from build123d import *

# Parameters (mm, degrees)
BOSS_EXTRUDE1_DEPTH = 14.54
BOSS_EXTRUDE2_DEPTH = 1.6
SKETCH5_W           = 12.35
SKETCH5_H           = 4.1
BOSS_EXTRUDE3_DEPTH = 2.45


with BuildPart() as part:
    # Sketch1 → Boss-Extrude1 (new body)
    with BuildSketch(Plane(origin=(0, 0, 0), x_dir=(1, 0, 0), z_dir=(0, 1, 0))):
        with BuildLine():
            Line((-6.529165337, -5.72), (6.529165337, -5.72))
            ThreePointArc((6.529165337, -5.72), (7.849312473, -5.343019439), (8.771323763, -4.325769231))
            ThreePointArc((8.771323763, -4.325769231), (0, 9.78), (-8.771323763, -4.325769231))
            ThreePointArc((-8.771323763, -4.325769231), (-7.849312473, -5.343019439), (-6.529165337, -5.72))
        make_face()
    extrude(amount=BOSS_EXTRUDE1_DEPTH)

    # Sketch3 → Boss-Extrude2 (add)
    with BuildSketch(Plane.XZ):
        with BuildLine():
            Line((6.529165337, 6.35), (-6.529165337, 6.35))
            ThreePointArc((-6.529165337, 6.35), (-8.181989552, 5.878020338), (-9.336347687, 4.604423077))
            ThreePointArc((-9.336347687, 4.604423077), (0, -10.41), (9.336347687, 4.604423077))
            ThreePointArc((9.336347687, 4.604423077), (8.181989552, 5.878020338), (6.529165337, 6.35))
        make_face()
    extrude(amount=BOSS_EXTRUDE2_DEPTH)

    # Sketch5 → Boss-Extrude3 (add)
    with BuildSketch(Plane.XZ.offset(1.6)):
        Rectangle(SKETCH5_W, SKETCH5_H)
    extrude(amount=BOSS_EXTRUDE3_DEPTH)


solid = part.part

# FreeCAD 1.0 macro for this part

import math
import FreeCAD as App
import Part
import Sketcher

V = App.Vector


def add_polygon(sketch, points):
    """Adds a closed chain of lines whose ends are joined by coincident constraints."""
    first, n = sketch.GeometryCount, len(points)
    for a, b in zip(points, points[1:] + points[:1]):
        sketch.addGeometry(Part.LineSegment(App.Vector(*a, 0), App.Vector(*b, 0)), False)
    for i in range(n):
        sketch.addConstraint(Sketcher.Constraint("Coincident", first + i, 2, first + (i + 1) % n, 1))

doc = App.newDocument("Part")
body = doc.addObject("PartDesign::Body", "Body")

sketch1 = body.newObject("Sketcher::SketchObject", "Sketch")
sketch1.AttachmentSupport = (doc.getObject("XZ_Plane"), [""])
sketch1.MapMode = "FlatFace"
sketch1.addGeometry([
    Part.LineSegment(V(-6.5, 5.7, 0), V(6.5, 5.7, 0)),
    Part.ArcOfCircle(Part.Circle(V(6.5, 3.2, 0), V(0, 0, 1), 2.5), math.radians(26), math.radians(90)),
    Part.ArcOfCircle(Part.Circle(V(0, 0, 0), V(0, 0, 1), 9.8), math.radians(154), math.radians(386)),
    Part.ArcOfCircle(Part.Circle(V(-6.5, 3.2, 0), V(0, 0, 1), 2.5), math.radians(90), math.radians(154)),
], False)
sketch1.addConstraint([
    Sketcher.Constraint("Tangent", 0, 2, 1, 2),
    Sketcher.Constraint("Tangent", 1, 1, 2, 2),
    Sketcher.Constraint("Tangent", 2, 1, 3, 2),
    Sketcher.Constraint("Tangent", 3, 1, 0, 1),
    Sketcher.Constraint("Horizontal", 0),
    Sketcher.Constraint("Coincident", 2, 3, -1, 1),
    Sketcher.Constraint("Equal", 1, 3),
    Sketcher.Constraint("Radius", 1, 2.5),
    Sketcher.Constraint("Radius", 2, 9.78),
    Sketcher.Constraint("DistanceY", -1, 1, 1, 3, 3.22),
])
pad1 = body.newObject("PartDesign::Pad", "Pad")
pad1.Profile = sketch1
pad1.Length = 14.54
pad1.Reversed = True

sketch2 = body.newObject("Sketcher::SketchObject", "Sketch001")
sketch2.AttachmentSupport = (doc.getObject("XZ_Plane"), [""])
sketch2.MapMode = "FlatFace"
sketch2.addGeometry([
    Part.LineSegment(V(6.5, 6.3, 0), V(-6.5, 6.3, 0)),
    Part.ArcOfCircle(Part.Circle(V(-6.5, 3.2, 0), V(0, 0, 1), 3.1), math.radians(90), math.radians(154)),
    Part.ArcOfCircle(Part.Circle(V(0, 0, 0), V(0, 0, 1), 10.4), math.radians(154), math.radians(386)),
    Part.ArcOfCircle(Part.Circle(V(6.5, 3.2, 0), V(0, 0, 1), 3.1), math.radians(26), math.radians(90)),
], False)
sketch2.addConstraint([
    Sketcher.Constraint("Tangent", 0, 2, 1, 1),
    Sketcher.Constraint("Tangent", 1, 2, 2, 1),
    Sketcher.Constraint("Tangent", 2, 2, 3, 1),
    Sketcher.Constraint("Tangent", 3, 2, 0, 1),
    Sketcher.Constraint("Horizontal", 0),
    Sketcher.Constraint("Coincident", 2, 3, -1, 1),
    Sketcher.Constraint("Equal", 1, 3),
    Sketcher.Constraint("Radius", 1, 3.13),
    Sketcher.Constraint("Radius", 2, 10.41),
    Sketcher.Constraint("DistanceY", -1, 1, 1, 3, 3.22),
])
pad2 = body.newObject("PartDesign::Pad", "Pad001")
pad2.Profile = sketch2
pad2.Length = 1.6

sketch3 = body.newObject("Sketcher::SketchObject", "Sketch002")
sketch3.AttachmentSupport = (doc.getObject("XZ_Plane"), [""])
sketch3.MapMode = "FlatFace"
sketch3.AttachmentOffset = App.Placement(V(0, 0, 1.6), App.Rotation())
add_polygon(sketch3, [(-6.2, 2), (-6.2, -2), (6.2, -2), (6.2, 2)])
sketch3.addConstraint([
    Sketcher.Constraint("Vertical", 0),
    Sketcher.Constraint("Horizontal", 1),
    Sketcher.Constraint("Vertical", 2),
    Sketcher.Constraint("Horizontal", 3),
    Sketcher.Constraint("Symmetric", 0, 2, 2, 2, -1, 1),
    Sketcher.Constraint("DistanceY", 0, 2, 0, 1, 4.1),
    Sketcher.Constraint("DistanceX", 1, 1, 1, 2, 12.35),
])
pad3 = body.newObject("PartDesign::Pad", "Pad002")
pad3.Profile = sketch3
pad3.Length = 2.45

doc.recompute()
